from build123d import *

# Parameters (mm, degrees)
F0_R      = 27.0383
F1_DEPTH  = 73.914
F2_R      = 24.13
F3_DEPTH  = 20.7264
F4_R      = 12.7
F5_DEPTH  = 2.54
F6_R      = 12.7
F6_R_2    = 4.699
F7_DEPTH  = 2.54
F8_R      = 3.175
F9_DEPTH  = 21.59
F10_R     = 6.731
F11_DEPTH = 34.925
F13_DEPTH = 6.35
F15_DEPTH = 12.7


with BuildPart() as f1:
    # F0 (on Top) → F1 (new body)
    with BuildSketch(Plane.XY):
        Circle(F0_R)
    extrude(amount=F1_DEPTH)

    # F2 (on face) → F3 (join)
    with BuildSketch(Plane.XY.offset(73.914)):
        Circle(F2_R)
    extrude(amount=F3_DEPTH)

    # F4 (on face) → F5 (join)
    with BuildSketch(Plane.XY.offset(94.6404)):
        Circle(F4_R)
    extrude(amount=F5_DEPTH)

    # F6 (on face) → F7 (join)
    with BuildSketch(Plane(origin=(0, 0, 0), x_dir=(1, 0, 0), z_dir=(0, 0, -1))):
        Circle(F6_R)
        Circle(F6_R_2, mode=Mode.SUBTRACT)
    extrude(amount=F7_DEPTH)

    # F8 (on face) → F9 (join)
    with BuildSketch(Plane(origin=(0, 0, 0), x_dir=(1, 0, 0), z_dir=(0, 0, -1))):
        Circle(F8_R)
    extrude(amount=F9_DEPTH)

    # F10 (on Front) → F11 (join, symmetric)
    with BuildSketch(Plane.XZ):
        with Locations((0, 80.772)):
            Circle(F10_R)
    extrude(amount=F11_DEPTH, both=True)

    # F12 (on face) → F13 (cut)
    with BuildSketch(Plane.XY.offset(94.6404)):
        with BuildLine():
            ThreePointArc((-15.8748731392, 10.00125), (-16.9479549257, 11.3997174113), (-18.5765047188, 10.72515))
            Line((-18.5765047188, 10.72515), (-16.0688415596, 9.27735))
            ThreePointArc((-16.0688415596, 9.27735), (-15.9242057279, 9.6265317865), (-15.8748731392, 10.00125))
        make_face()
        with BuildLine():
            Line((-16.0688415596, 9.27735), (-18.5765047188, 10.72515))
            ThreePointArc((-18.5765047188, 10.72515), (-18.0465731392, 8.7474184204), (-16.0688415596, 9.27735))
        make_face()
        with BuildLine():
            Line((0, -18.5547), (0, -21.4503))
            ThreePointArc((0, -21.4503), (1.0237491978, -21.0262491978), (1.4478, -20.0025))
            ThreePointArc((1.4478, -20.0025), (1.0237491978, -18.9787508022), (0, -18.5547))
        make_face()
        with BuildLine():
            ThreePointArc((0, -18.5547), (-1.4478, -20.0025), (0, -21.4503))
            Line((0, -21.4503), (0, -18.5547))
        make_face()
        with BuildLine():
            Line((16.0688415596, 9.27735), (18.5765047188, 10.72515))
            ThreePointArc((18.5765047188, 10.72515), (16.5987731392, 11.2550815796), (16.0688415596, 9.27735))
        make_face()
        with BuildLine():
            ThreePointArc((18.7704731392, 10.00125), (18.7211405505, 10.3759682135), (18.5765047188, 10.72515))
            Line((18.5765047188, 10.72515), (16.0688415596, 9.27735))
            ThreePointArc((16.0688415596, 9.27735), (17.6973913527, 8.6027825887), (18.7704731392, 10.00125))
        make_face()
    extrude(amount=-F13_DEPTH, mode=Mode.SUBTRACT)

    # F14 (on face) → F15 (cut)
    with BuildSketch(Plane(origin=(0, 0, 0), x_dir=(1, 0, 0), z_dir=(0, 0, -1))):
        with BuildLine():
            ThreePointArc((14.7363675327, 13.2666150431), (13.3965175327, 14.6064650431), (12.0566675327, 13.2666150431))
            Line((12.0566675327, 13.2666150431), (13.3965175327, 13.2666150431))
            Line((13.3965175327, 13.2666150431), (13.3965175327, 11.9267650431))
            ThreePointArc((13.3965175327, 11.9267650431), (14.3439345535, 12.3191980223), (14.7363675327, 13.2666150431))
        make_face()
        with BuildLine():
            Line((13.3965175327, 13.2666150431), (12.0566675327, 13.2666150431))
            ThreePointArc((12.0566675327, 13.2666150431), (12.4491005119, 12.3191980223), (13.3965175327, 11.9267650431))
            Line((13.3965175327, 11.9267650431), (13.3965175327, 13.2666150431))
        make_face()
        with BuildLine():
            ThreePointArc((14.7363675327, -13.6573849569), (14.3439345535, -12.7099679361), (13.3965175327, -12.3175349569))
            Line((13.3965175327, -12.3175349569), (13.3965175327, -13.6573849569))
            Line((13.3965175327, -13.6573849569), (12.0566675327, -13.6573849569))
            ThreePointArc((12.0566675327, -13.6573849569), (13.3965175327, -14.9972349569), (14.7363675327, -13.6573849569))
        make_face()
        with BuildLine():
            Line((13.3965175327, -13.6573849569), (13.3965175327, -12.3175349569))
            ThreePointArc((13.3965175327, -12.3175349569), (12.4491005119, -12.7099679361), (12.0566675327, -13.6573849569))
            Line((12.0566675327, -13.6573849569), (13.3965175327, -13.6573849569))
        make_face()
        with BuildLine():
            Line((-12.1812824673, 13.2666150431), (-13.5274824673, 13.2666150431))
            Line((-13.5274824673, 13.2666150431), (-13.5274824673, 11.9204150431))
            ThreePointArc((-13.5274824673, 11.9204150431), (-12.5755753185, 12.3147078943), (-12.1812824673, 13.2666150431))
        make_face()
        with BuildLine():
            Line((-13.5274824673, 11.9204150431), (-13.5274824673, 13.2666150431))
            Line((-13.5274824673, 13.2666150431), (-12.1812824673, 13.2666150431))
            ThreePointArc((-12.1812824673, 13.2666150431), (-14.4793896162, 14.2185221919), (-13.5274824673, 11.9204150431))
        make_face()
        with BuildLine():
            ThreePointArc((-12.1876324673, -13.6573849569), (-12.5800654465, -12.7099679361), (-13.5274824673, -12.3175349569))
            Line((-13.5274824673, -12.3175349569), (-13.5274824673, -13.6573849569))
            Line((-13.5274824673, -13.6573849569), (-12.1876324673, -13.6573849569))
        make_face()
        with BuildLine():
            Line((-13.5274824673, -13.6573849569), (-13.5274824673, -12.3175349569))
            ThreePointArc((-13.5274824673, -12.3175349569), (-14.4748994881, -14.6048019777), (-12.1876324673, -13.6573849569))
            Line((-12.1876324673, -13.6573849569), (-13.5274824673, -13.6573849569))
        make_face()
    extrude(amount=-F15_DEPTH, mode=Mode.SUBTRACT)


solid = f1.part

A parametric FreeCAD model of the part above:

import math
import FreeCAD as App
import Part
import Sketcher
from FreeCAD import Vector
Q = App.Units.Quantity

doc = App.newDocument("Part")
body = doc.addObject("PartDesign::Body", "Body")

sketch1 = doc.addObject("Sketcher::SketchObject", "Sketch")
body.addObject(sketch1)
sketch1.AttachmentSupport = (doc.XY_Plane, [""])
sketch1.MapMode = "FlatFace"
sketch1.addGeometry(Part.Circle(Vector(0, 0, 0), Vector(0, 0, 1), 27), False)
sketch1.addConstraint(Sketcher.Constraint("Coincident", 0, 3, -1, 1))
sketch1.addConstraint(Sketcher.Constraint("Diameter", 0, Q("2.129 in")))
pad1 = doc.addObject("PartDesign::Pad", "Pad")
body.addObject(pad1)
pad1.Profile = sketch1
pad1.Length = Q("2.91 in")

sketch2 = doc.addObject("Sketcher::SketchObject", "Sketch001")
body.addObject(sketch2)
sketch2.AttachmentSupport = (doc.XY_Plane, [""])
sketch2.MapMode = "FlatFace"
sketch2.AttachmentOffset = App.Placement(Vector(0, 0, 2.91 * 25.4), App.Rotation())
sketch2.addGeometry(Part.Circle(Vector(0, 0, 0), Vector(0, 0, 1), 24), False)
sketch2.addConstraint(Sketcher.Constraint("Coincident", 0, 3, -1, 1))
sketch2.addConstraint(Sketcher.Constraint("Diameter", 0, Q("1.9 in")))
pad2 = doc.addObject("PartDesign::Pad", "Pad001")
body.addObject(pad2)
pad2.Profile = sketch2
pad2.Length = Q("0.816 in")

sketch3 = doc.addObject("Sketcher::SketchObject", "Sketch002")
body.addObject(sketch3)
sketch3.AttachmentSupport = (doc.XY_Plane, [""])
sketch3.MapMode = "FlatFace"
sketch3.AttachmentOffset = App.Placement(Vector(0, 0, 3.726 * 25.4), App.Rotation())
sketch3.addGeometry(Part.Circle(Vector(0, 0, 0), Vector(0, 0, 1), 13), False)
sketch3.addConstraint(Sketcher.Constraint("Coincident", 0, 3, -1, 1))
sketch3.addConstraint(Sketcher.Constraint("Diameter", 0, Q("1 in")))
pad3 = doc.addObject("PartDesign::Pad", "Pad002")
body.addObject(pad3)
pad3.Profile = sketch3
pad3.Length = Q("0.1 in")

sketch4 = doc.addObject("Sketcher::SketchObject", "Sketch003")
body.addObject(sketch4)
sketch4.AttachmentSupport = (doc.XY_Plane, [""])
sketch4.MapMode = "FlatFace"
sketch4.addGeometry(Part.Circle(Vector(0, 0, 0), Vector(0, 0, 1), 12.7), False)
sketch4.addGeometry(Part.Circle(Vector(0, 0, 0), Vector(0, 0, 1), 4.7), False)
sketch4.addConstraint(Sketcher.Constraint("Coincident", 0, 3, -1, 1))
sketch4.addConstraint(Sketcher.Constraint("Coincident", 1, 3, -1, 1))
sketch4.addConstraint(Sketcher.Constraint("Diameter", 0, Q("1 in")))
sketch4.addConstraint(Sketcher.Constraint("Diameter", 1, Q("0.37 in")))
pad4 = doc.addObject("PartDesign::Pad", "Pad003")
body.addObject(pad4)
pad4.Profile = sketch4
pad4.Length = Q("0.1 in")
pad4.Reversed = True

sketch5 = doc.addObject("Sketcher::SketchObject", "Sketch004")
body.addObject(sketch5)
sketch5.AttachmentSupport = (doc.XY_Plane, [""])
sketch5.MapMode = "FlatFace"
sketch5.addGeometry(Part.Circle(Vector(0, 0, 0), Vector(0, 0, 1), 3.2), False)
sketch5.addConstraint(Sketcher.Constraint("Coincident", 0, 3, -1, 1))
sketch5.addConstraint(Sketcher.Constraint("Diameter", 0, Q("0.25 in")))
pad5 = doc.addObject("PartDesign::Pad", "Pad004")
body.addObject(pad5)
pad5.Profile = sketch5
pad5.Length = Q("0.85 in")
pad5.Reversed = True

sketch6 = doc.addObject("Sketcher::SketchObject", "Sketch005")
body.addObject(sketch6)
sketch6.AttachmentSupport = (doc.XZ_Plane, [""])
sketch6.MapMode = "FlatFace"
sketch6.addGeometry(Part.Circle(Vector(0, 81, 0), Vector(0, 0, 1), 7), False)
sketch6.addConstraint(Sketcher.Constraint("PointOnObject", 0, 3, -2))
sketch6.addConstraint(Sketcher.Constraint("Diameter", 0, Q("0.53 in")))
sketch6.addConstraint(Sketcher.Constraint("DistanceY", -1, 1, 0, 3, Q("3.18 in")))
pad6 = doc.addObject("PartDesign::Pad", "Pad005")
body.addObject(pad6)
pad6.Profile = sketch6
pad6.Length = Q("2.75 in")
pad6.Midplane = True

sketch7 = doc.addObject("Sketcher::SketchObject", "Sketch006")
body.addObject(sketch7)
sketch7.AttachmentSupport = (doc.XY_Plane, [""])
sketch7.MapMode = "FlatFace"
sketch7.AttachmentOffset = App.Placement(Vector(0, 0, 3.726 * 25.4), App.Rotation())
sketch7.addGeometry(Part.ArcOfCircle(Part.Circle(Vector(-17.3, 10, 0), Vector(0, 0, 1), 1.4), math.radians(0), math.radians(150)), False)
sketch7.addGeometry(Part.ArcOfCircle(Part.Circle(Vector(-17.3, 10, 0), Vector(0, 0, 1), 1.4), math.radians(150), math.radians(330)), False)
sketch7.addGeometry(Part.ArcOfCircle(Part.Circle(Vector(-17.3, 10, 0), Vector(0, 0, 1), 1.4), math.radians(-30), math.radians(0)), False)
sketch7.addGeometry(Part.ArcOfCircle(Part.Circle(Vector(0, -20, 0), Vector(0, 0, 1), 1.4), math.radians(-90), math.radians(0)), False)
sketch7.addGeometry(Part.ArcOfCircle(Part.Circle(Vector(0, -20, 0), Vector(0, 0, 1), 1.4), math.radians(0), math.radians(90)), False)
sketch7.addGeometry(Part.ArcOfCircle(Part.Circle(Vector(0, -20, 0), Vector(0, 0, 1), 1.4), math.radians(90), math.radians(270)), False)
sketch7.addGeometry(Part.ArcOfCircle(Part.Circle(Vector(17.3, 10, 0), Vector(0, 0, 1), 1.4), math.radians(30), math.radians(210)), False)
sketch7.addGeometry(Part.ArcOfCircle(Part.Circle(Vector(17.3, 10, 0), Vector(0, 0, 1), 1.4), math.radians(-150), math.radians(0)), False)
sketch7.addGeometry(Part.ArcOfCircle(Part.Circle(Vector(17.3, 10, 0), Vector(0, 0, 1), 1.4), math.radians(0), math.radians(30)), False)
sketch7.addConstraint(Sketcher.Constraint("Tangent", 0, 2, 1, 1))
sketch7.addConstraint(Sketcher.Constraint("Tangent", 1, 2, 2, 1))
sketch7.addConstraint(Sketcher.Constraint("Tangent", 2, 2, 0, 1))
sketch7.addConstraint(Sketcher.Constraint("Tangent", 3, 2, 4, 1))
sketch7.addConstraint(Sketcher.Constraint("Tangent", 4, 2, 5, 1))
sketch7.addConstraint(Sketcher.Constraint("Tangent", 5, 2, 3, 1))
sketch7.addConstraint(Sketcher.Constraint("Tangent", 6, 2, 7, 1))
sketch7.addConstraint(Sketcher.Constraint("Tangent", 7, 2, 8, 1))
sketch7.addConstraint(Sketcher.Constraint("Tangent", 8, 2, 6, 1))
sketch7.addConstraint(Sketcher.Constraint("Equal", 2, 3))
sketch7.addConstraint(Sketcher.Constraint("Equal", 5, 6))
sketch7.addConstraint(Sketcher.Constraint("Symmetric", 0, 3, 6, 3, -2))
sketch7.addConstraint(Sketcher.Constraint("PointOnObject", 3, 3, -2))
sketch7.addConstraint(Sketcher.Constraint("PointOnObject", 4, 2, -2))
sketch7.addConstraint(Sketcher.Constraint("PointOnObject", 5, 2, -2))
sketch7.addConstraint(Sketcher.Constraint("Horizontal", 8, 3, 2, 2))
sketch7.addConstraint(Sketcher.Constraint("Horizontal", 5, 3, 3, 2))
sketch7.addConstraint(Sketcher.Constraint("Horizontal", 1, 2, 6, 2))
sketch7.addConstraint(Sketcher.Constraint("Horizontal", 2, 2, 7, 2))
sketch7.addConstraint(Sketcher.Constraint("Horizontal", 0, 2, 8, 2))
sketch7.addConstraint(Sketcher.Constraint("Radius", 0, Q("0.057 in")))
sketch7.addConstraint(Sketcher.Constraint("DistanceY", 1, 2, 0, 2, Q("0.057 in")))
sketch7.addConstraint(Sketcher.Constraint("DistanceY", 3, 3, -1, 1, Q("0.7875 in")))
sketch7.addConstraint(Sketcher.Constraint("DistanceY", 0, 3, 0, 2, Q("0.0285 in")))
sketch7.addConstraint(Sketcher.Constraint("DistanceY", -1, 1, 0, 3, 10.00125))
sketch7.addConstraint(Sketcher.Constraint("DistanceX", 1, 2, -1, 1, 16.068842))
pocket1 = doc.addObject("PartDesign::Pocket", "Pocket")
body.addObject(pocket1)
pocket1.Profile = sketch7
pocket1.Length = Q("0.25 in")

sketch8 = doc.addObject("Sketcher::SketchObject", "Sketch007")
body.addObject(sketch8)
sketch8.AttachmentSupport = (doc.XY_Plane, [""])
sketch8.MapMode = "FlatFace"
sketch8.addGeometry(Part.ArcOfCircle(Part.Circle(Vector(13.4, -13.3, 0), Vector(0, 0, 1), 1.3), math.radians(180), math.radians(360)), False)
sketch8.addGeometry(Part.ArcOfCircle(Part.Circle(Vector(13.4, -13.3, 0), Vector(0, 0, 1), 1.3), math.radians(90), math.radians(180)), False)
sketch8.addGeometry(Part.ArcOfCircle(Part.Circle(Vector(13.4, -13.3, 0), Vector(0, 0, 1), 1.3), math.radians(0), math.radians(90)), False)
sketch8.addGeometry(Part.ArcOfCircle(Part.Circle(Vector(13.4, 13.7, 0), Vector(0, 0, 1), 1.3), math.radians(-90), math.radians(0)), False)
sketch8.addGeometry(Part.ArcOfCircle(Part.Circle(Vector(13.4, 13.7, 0), Vector(0, 0, 1), 1.3), math.radians(180), math.radians(270)), False)
sketch8.addGeometry(Part.ArcOfCircle(Part.Circle(Vector(13.4, 13.7, 0), Vector(0, 0, 1), 1.3), math.radians(0), math.radians(180)), False)
sketch8.addGeometry(Part.ArcOfCircle(Part.Circle(Vector(-13.5, -13.3, 0), Vector(0, 0, 1), 1.3), math.radians(0), math.radians(90)), False)
sketch8.addGeometry(Part.ArcOfCircle(Part.Circle(Vector(-13.5, -13.3, 0), Vector(0, 0, 1), 1.3), math.radians(90), math.radians(360)), False)
sketch8.addGeometry(Part.ArcOfCircle(Part.Circle(Vector(-13.5, 13.7, 0), Vector(0, 0, 1), 1.3), math.radians(-90), math.radians(0)), False)
sketch8.addGeometry(Part.ArcOfCircle(Part.Circle(Vector(-13.5, 13.7, 0), Vector(0, 0, 1), 1.3), math.radians(0), math.radians(270)), False)
sketch8.addConstraint(Sketcher.Constraint("Tangent", 0, 1, 1, 2))
sketch8.addConstraint(Sketcher.Constraint("Tangent", 1, 1, 2, 2))
sketch8.addConstraint(Sketcher.Constraint("Tangent", 2, 1, 0, 2))
sketch8.addConstraint(Sketcher.Constraint("Tangent", 3, 1, 4, 2))
sketch8.addConstraint(Sketcher.Constraint("Tangent", 4, 1, 5, 2))
sketch8.addConstraint(Sketcher.Constraint("Tangent", 5, 1, 3, 2))
sketch8.addConstraint(Sketcher.Constraint("Tangent", 6, 1, 7, 2))
sketch8.addConstraint(Sketcher.Constraint("Coincident", 7, 1, 6, 2))
sketch8.addConstraint(Sketcher.Constraint("Tangent", 8, 1, 9, 2))
sketch8.addConstraint(Sketcher.Constraint("Coincident", 9, 1, 8, 2))
sketch8.addConstraint(Sketcher.Constraint("Equal", 2, 3))
sketch8.addConstraint(Sketcher.Constraint("Equal", 5, 8))
sketch8.addConstraint(Sketcher.Constraint("Horizontal", 2, 3, 6, 3))
sketch8.addConstraint(Sketcher.Constraint("Horizontal", 5, 3, 8, 3))
sketch8.addConstraint(Sketcher.Constraint("Horizontal", 7, 3, 0, 1))
sketch8.addConstraint(Sketcher.Constraint("Horizontal", 0, 1, 2, 1))
sketch8.addConstraint(Sketcher.Constraint("Horizontal", 9, 3, 4, 1))
sketch8.addConstraint(Sketcher.Constraint("Horizontal", 4, 1, 5, 1))
sketch8.addConstraint(Sketcher.Constraint("Horizontal", 2, 1, 6, 1))
sketch8.addConstraint(Sketcher.Constraint("Horizontal", 5, 1, 9, 1))
sketch8.addConstraint(Sketcher.Constraint("Vertical", 2, 3, 3, 3))
sketch8.addConstraint(Sketcher.Constraint("Vertical", 7, 3, 8, 3))
sketch8.addConstraint(Sketcher.Constraint("Vertical", 5, 3, 1, 1))
sketch8.addConstraint(Sketcher.Constraint("Vertical", 1, 1, 3, 1))
sketch8.addConstraint(Sketcher.Constraint("Vertical", 9, 3, 7, 1))
sketch8.addConstraint(Sketcher.Constraint("Vertical", 7, 1, 8, 1))
sketch8.addConstraint(Sketcher.Constraint("Radius", 6, Q("0.053 in")))
sketch8.addConstraint(Sketcher.Constraint("DistanceY", 0, 3, 3, 3, Q("1.06 in")))
sketch8.addConstraint(Sketcher.Constraint("DistanceX", 6, 3, 0, 3, Q("1.06 in")))
sketch8.addConstraint(Sketcher.Constraint("Radius", 0, 1.33985))
sketch8.addConstraint(Sketcher.Constraint("DistanceX", -1, 1, 0, 3, 13.396518))
sketch8.addConstraint(Sketcher.Constraint("DistanceY", 0, 3, -1, 1, 13.266615))
pocket2 = doc.addObject("PartDesign::Pocket", "Pocket001")
body.addObject(pocket2)
pocket2.Profile = sketch8
pocket2.Length = Q("0.5 in")
pocket2.Reversed = True

doc.recompute()
